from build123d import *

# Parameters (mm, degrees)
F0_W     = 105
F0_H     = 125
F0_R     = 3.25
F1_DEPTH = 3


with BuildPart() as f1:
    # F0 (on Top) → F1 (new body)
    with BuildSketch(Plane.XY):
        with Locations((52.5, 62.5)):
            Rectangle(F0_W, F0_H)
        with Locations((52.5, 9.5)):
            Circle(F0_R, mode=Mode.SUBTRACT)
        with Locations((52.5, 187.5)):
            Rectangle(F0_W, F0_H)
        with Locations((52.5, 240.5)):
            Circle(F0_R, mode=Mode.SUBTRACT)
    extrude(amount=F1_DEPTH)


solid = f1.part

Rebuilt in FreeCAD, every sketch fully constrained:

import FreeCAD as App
import Part
import Sketcher

V = App.Vector
Q = App.Units.Quantity

doc = App.newDocument("Part")
body = doc.addObject("PartDesign::Body", "Body")

sketch1 = body.newObject("Sketcher::SketchObject", "Sketch")
sketch1.AttachmentSupport = (doc.getObject("XY_Plane"), [""])
sketch1.MapMode = "FlatFace"
sketch1.addGeometry([
    Part.LineSegment(V(0, 0, 0), V(105, 0, 0)),
    Part.LineSegment(V(105, 0, 0), V(105, 250, 0)),
    Part.LineSegment(V(105, 250, 0), V(0, 250, 0)),
    Part.LineSegment(V(0, 250, 0), V(0, 0, 0)),
    Part.Circle(V(52.5, 9.5, 0), V(0, 0, 1), 3.25),
    Part.Circle(V(52.5, 240.5, 0), V(0, 0, 1), 3.25),
], False)
sketch1.addConstraint([
    Sketcher.Constraint("Coincident", 0, 2, 1, 1),
    Sketcher.Constraint("Coincident", 1, 2, 2, 1),
    Sketcher.Constraint("Coincident", 2, 2, 3, 1),
    Sketcher.Constraint("Coincident", 3, 2, 0, 1),
    Sketcher.Constraint("Horizontal", 0),
    Sketcher.Constraint("Vertical", 1),
    Sketcher.Constraint("Horizontal", 2),
    Sketcher.Constraint("Vertical", 3),
    Sketcher.Constraint("Coincident", 3, 2, -1, 1),
    Sketcher.Constraint("Equal", 4, 5),
    Sketcher.Constraint("Vertical", 4, 3, 5, 3),
    Sketcher.Constraint("Diameter", 4, Q("6.5 mm")),
    Sketcher.Constraint("DistanceX", 0, 1, 0, 2, Q("105 mm")),
    Sketcher.Constraint("DistanceY", 1, 1, 1, 2, Q("250 mm")),
    Sketcher.Constraint("DistanceY", 4, 3, 5, 3, Q("231 mm")),
    Sketcher.Constraint("DistanceX", -1, 1, 4, 3, Q("52.5 mm")),
    Sketcher.Constraint("DistanceY", -1, 1, 4, 3, Q("9.5 mm")),
])
pad1 = body.newObject("PartDesign::Pad", "Pad")
pad1.Profile = sketch1
pad1.Length = 3

doc.recompute()
